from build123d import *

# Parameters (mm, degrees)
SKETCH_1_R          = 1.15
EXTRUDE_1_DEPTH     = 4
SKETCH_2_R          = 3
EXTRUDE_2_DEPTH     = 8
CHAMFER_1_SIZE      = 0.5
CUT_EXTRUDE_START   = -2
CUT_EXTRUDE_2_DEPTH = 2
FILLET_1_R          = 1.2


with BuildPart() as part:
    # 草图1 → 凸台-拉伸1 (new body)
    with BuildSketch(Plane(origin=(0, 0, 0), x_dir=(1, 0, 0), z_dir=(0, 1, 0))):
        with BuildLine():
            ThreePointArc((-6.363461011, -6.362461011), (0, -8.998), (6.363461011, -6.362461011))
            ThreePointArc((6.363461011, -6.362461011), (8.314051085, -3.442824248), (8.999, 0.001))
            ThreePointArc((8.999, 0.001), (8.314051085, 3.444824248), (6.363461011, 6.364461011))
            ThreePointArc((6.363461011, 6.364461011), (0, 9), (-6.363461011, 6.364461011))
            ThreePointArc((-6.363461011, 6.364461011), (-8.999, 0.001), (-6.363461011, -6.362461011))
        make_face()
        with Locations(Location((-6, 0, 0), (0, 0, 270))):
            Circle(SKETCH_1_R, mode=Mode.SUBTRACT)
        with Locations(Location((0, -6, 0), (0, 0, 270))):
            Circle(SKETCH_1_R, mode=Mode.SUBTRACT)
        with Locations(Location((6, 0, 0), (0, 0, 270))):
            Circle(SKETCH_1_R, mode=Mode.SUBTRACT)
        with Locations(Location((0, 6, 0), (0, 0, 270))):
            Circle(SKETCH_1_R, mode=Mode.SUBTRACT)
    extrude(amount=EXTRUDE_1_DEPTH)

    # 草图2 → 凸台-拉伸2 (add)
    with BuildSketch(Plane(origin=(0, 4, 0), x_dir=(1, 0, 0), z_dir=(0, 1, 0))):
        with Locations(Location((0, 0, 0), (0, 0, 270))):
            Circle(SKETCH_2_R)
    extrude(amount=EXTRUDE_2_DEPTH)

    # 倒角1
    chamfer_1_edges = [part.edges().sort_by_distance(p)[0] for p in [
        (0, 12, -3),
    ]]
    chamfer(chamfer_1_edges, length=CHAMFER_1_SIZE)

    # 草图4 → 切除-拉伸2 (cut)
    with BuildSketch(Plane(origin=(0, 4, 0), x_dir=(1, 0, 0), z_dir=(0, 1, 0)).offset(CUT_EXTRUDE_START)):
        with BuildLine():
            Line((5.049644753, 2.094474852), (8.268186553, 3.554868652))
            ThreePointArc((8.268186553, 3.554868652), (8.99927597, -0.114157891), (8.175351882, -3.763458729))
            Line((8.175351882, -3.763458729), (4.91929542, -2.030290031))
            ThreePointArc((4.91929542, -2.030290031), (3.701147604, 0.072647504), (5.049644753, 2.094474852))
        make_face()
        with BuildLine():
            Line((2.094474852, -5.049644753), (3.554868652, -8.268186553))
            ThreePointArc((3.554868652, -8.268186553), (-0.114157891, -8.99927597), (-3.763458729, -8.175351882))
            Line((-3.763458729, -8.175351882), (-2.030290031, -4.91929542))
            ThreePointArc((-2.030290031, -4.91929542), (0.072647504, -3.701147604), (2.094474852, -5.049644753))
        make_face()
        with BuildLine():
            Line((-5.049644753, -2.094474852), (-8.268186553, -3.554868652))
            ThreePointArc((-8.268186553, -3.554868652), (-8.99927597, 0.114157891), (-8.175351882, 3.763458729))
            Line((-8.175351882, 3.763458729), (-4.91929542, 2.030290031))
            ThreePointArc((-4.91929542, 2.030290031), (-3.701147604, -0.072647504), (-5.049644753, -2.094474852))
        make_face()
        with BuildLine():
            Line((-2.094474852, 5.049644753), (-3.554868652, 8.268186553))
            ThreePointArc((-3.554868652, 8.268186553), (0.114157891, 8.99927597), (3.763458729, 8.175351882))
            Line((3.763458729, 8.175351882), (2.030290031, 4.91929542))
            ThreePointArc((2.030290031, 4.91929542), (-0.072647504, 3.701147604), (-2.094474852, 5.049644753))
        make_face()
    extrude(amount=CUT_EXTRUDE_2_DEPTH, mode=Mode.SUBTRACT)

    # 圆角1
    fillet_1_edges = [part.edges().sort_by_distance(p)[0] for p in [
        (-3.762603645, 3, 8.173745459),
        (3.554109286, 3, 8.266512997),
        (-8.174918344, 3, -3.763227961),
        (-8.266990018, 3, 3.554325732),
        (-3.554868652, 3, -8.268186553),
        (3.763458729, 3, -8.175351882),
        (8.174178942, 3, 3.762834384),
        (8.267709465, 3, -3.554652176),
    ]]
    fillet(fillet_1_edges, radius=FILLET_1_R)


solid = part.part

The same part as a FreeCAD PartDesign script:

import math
import FreeCAD as App
import Part
import Sketcher


def edges_at(feature, points):
    """Names of the edges that pass closest to the given points."""
    edges = feature.Shape.Edges
    near = lambda p: min(range(len(edges)), key=lambda i: edges[i].distToShape(Part.Vertex(*p))[0])
    return sorted({f"Edge{near(p) + 1}" for p in points})

doc = App.newDocument("Part")
params = doc.addObject("Spreadsheet::Sheet", "Params")
for row, (alias, value) in enumerate([
    ("sketch1_radius", "9 mm"),
    ("sketch1_diameter", "2.3 mm"),
    ("pad1_length", "4 mm"),
    ("sketch2_diameter", "6 mm"),
    ("pad2_length", "8 mm"),
    ("chamfer_size", "0.5 mm"),
    ("sketch3_radius", "9 mm"),
    ("sketch3_radius2", "2.3 mm"),
    ("pocket1_length", "2 mm"),
    ("fillet_radius", "1.2 mm"),
], start=1):
    params.set(f"A{row}", alias)
    params.set(f"B{row}", "=" + value)
    params.setAlias(f"B{row}", alias)

body = doc.addObject("PartDesign::Body", "Body")

# Sketch on XZ plane
sketch1 = doc.addObject("Sketcher::SketchObject", "Sketch")
body.addObject(sketch1)
sketch1.AttachmentSupport = (doc.XZ_Plane, [""])
sketch1.MapMode = "FlatFace"
sketch1.addGeometry(Part.ArcOfCircle(Part.Circle(App.Vector(0, 0, 0), App.Vector(0, 0, 1), 9), math.radians(45), math.radians(135)), False)
sketch1.addGeometry(Part.ArcOfCircle(Part.Circle(App.Vector(0, 0, 0), App.Vector(0, 0, 1), 9), math.radians(0), math.radians(45)), False)
sketch1.addGeometry(Part.ArcOfCircle(Part.Circle(App.Vector(0, 0, 0), App.Vector(0, 0, 1), 9), math.radians(-45), math.radians(0)), False)
sketch1.addGeometry(Part.ArcOfCircle(Part.Circle(App.Vector(0, 0, 0), App.Vector(0, 0, 1), 9), math.radians(-135), math.radians(-45)), False)
sketch1.addGeometry(Part.ArcOfCircle(Part.Circle(App.Vector(0, 0, 0), App.Vector(0, 0, 1), 9), math.radians(135), math.radians(225)), False)
sketch1.addGeometry(Part.Circle(App.Vector(0, 6, 0), App.Vector(0, 0, 1), 1.1), False)
sketch1.addGeometry(Part.Circle(App.Vector(-6, 0, 0), App.Vector(0, 0, 1), 1.1), False)
sketch1.addGeometry(Part.Circle(App.Vector(6, 0, 0), App.Vector(0, 0, 1), 1.1), False)
sketch1.addGeometry(Part.Circle(App.Vector(0, -6, 0), App.Vector(0, 0, 1), 1.1), False)
sketch1.addConstraint(Sketcher.Constraint("Coincident", 0, 1, 1, 2))
sketch1.addConstraint(Sketcher.Constraint("Tangent", 1, 1, 2, 2))
sketch1.addConstraint(Sketcher.Constraint("Coincident", 2, 1, 3, 2))
sketch1.addConstraint(Sketcher.Constraint("Coincident", 3, 1, 4, 2))
sketch1.addConstraint(Sketcher.Constraint("Coincident", 4, 1, 0, 2))
sketch1.addConstraint(Sketcher.Constraint("Coincident", 3, 3, -1, 1))
sketch1.addConstraint(Sketcher.Constraint("Equal", 0, 1))
sketch1.addConstraint(Sketcher.Constraint("Equal", 1, 2))
sketch1.addConstraint(Sketcher.Constraint("Equal", 2, 3))
sketch1.addConstraint(Sketcher.Constraint("Equal", 3, 4))
sketch1.addConstraint(Sketcher.Constraint("Equal", 5, 6))
sketch1.addConstraint(Sketcher.Constraint("Equal", 6, 7))
sketch1.addConstraint(Sketcher.Constraint("Equal", 7, 8))
sketch1.addConstraint(Sketcher.Constraint("Symmetric", 6, 3, 7, 3, -1, 1))
sketch1.addConstraint(Sketcher.Constraint("Symmetric", 5, 3, 8, 3, -1, 1))
sketch1.addConstraint(Sketcher.Constraint("Symmetric", 0, 1, 4, 1, -2))
sketch1.addConstraint(Sketcher.Constraint("PointOnObject", 5, 3, -2))
sketch1.addConstraint(Sketcher.Constraint("PointOnObject", 6, 3, -1))
sketch1.addConstraint(Sketcher.Constraint("Horizontal", 4, 3, 1, 1))
sketch1.addConstraint(Sketcher.Constraint("Horizontal", 2, 1, 3, 1))
sketch1.addConstraint(Sketcher.Constraint("Vertical", 0, 1, 2, 1))
sketch1.addConstraint(Sketcher.Constraint("Radius", 0, 9.0))
sketch1.addConstraint(Sketcher.Constraint("Diameter", 5, 2.3))
sketch1.addConstraint(Sketcher.Constraint("DistanceY", -1, 1, 5, 3, 6.0))
sketch1.addConstraint(Sketcher.Constraint("DistanceX", 6, 3, -1, 1, 6.0))
sketch1.addConstraint(Sketcher.Constraint("DistanceY", 0, 3, -1, 1, 0.002))
sketch1.addConstraint(Sketcher.Constraint("DistanceX", -1, 1, 0, 1, 6.363461))
sketch1.setExpression("Constraints[21]", "Params.sketch1_radius")
sketch1.setExpression("Constraints[22]", "Params.sketch1_diameter")
pad1 = doc.addObject("PartDesign::Pad", "Pad")
body.addObject(pad1)
pad1.Profile = sketch1
pad1.setExpression("Length", "Params.pad1_length")
pad1.Reversed = True

# Sketch on XZ plane
sketch2 = doc.addObject("Sketcher::SketchObject", "Sketch001")
body.addObject(sketch2)
sketch2.AttachmentSupport = (doc.XZ_Plane, [""])
sketch2.MapMode = "FlatFace"
sketch2.AttachmentOffset = App.Placement(App.Vector(0, 0, -4), App.Rotation())
sketch2.addGeometry(Part.Circle(App.Vector(0, 0, 0), App.Vector(0, 0, 1), 3), False)
sketch2.addConstraint(Sketcher.Constraint("Coincident", 0, 3, -1, 1))
sketch2.addConstraint(Sketcher.Constraint("Diameter", 0, 6.0))
sketch2.setExpression("Constraints[1]", "Params.sketch2_diameter")
pad2 = doc.addObject("PartDesign::Pad", "Pad001")
body.addObject(pad2)
pad2.Profile = sketch2
pad2.setExpression("Length", "Params.pad2_length")
pad2.Reversed = True
doc.recompute()

chamfer = doc.addObject("PartDesign::Chamfer", "Chamfer")
body.addObject(chamfer)
chamfer.Base = (pad2, edges_at(pad2, [(0, 12, -3)]))
chamfer.setExpression("Size", "Params.chamfer_size")

# Sketch on XZ plane
sketch3 = doc.addObject("Sketcher::SketchObject", "Sketch002")
body.addObject(sketch3)
sketch3.AttachmentSupport = (doc.XZ_Plane, [""])
sketch3.MapMode = "FlatFace"
sketch3.AttachmentOffset = App.Placement(App.Vector(0, 0, -2), App.Rotation())
sketch3.addGeometry(Part.LineSegment(App.Vector(8.3, -3.6, 0), App.Vector(5, -2.1, 0)), False)
sketch3.addGeometry(Part.ArcOfCircle(Part.Circle(App.Vector(6, 0, 0), App.Vector(0, 0, 1), 2.3), math.radians(118), math.radians(246)), False)
sketch3.addGeometry(Part.LineSegment(App.Vector(4.9, 2, 0), App.Vector(8.2, 3.8, 0)), False)
sketch3.addGeometry(Part.ArcOfCircle(Part.Circle(App.Vector(0, 0, 0), App.Vector(0, 0, 1), 9), math.radians(-23), math.radians(25)), False)
sketch3.addGeometry(Part.LineSegment(App.Vector(3.6, 8.3, 0), App.Vector(2.1, 5, 0)), False)
sketch3.addGeometry(Part.ArcOfCircle(Part.Circle(App.Vector(0, 6, 0), App.Vector(0, 0, 1), 2.3), math.radians(-152), math.radians(-24)), False)
sketch3.addGeometry(Part.LineSegment(App.Vector(-2, 4.9, 0), App.Vector(-3.8, 8.2, 0)), False)
sketch3.addGeometry(Part.ArcOfCircle(Part.Circle(App.Vector(0, 0, 0), App.Vector(0, 0, 1), 9), math.radians(67), math.radians(115)), False)
sketch3.addGeometry(Part.LineSegment(App.Vector(-8.3, 3.6, 0), App.Vector(-5, 2.1, 0)), False)
sketch3.addGeometry(Part.ArcOfCircle(Part.Circle(App.Vector(-6, 0, 0), App.Vector(0, 0, 1), 2.3), math.radians(-62), math.radians(66)), False)
sketch3.addGeometry(Part.LineSegment(App.Vector(-4.9, -2, 0), App.Vector(-8.2, -3.8, 0)), False)
sketch3.addGeometry(Part.ArcOfCircle(Part.Circle(App.Vector(0, 0, 0), App.Vector(0, 0, 1), 9), math.radians(157), math.radians(205)), False)
sketch3.addGeometry(Part.LineSegment(App.Vector(-3.6, -8.3, 0), App.Vector(-2.1, -5, 0)), False)
sketch3.addGeometry(Part.ArcOfCircle(Part.Circle(App.Vector(0, -6, 0), App.Vector(0, 0, 1), 2.3), math.radians(28), math.radians(156)), False)
sketch3.addGeometry(Part.LineSegment(App.Vector(2, -4.9, 0), App.Vector(3.8, -8.2, 0)), False)
sketch3.addGeometry(Part.ArcOfCircle(Part.Circle(App.Vector(0, 0, 0), App.Vector(0, 0, 1), 9), math.radians(-113), math.radians(-65)), False)
sketch3.addConstraint(Sketcher.Constraint("Tangent", 0, 2, 1, 2))
sketch3.addConstraint(Sketcher.Constraint("Tangent", 1, 1, 2, 1))
sketch3.addConstraint(Sketcher.Constraint("Coincident", 2, 2, 3, 2))
sketch3.addConstraint(Sketcher.Constraint("Coincident", 3, 1, 0, 1))
sketch3.addConstraint(Sketcher.Constraint("Tangent", 4, 2, 5, 2))
sketch3.addConstraint(Sketcher.Constraint("Tangent", 5, 1, 6, 1))
sketch3.addConstraint(Sketcher.Constraint("Coincident", 6, 2, 7, 2))
sketch3.addConstraint(Sketcher.Constraint("Coincident", 7, 1, 4, 1))
sketch3.addConstraint(Sketcher.Constraint("Tangent", 8, 2, 9, 2))
sketch3.addConstraint(Sketcher.Constraint("Tangent", 9, 1, 10, 1))
sketch3.addConstraint(Sketcher.Constraint("Coincident", 10, 2, 11, 2))
sketch3.addConstraint(Sketcher.Constraint("Coincident", 11, 1, 8, 1))
sketch3.addConstraint(Sketcher.Constraint("Tangent", 12, 2, 13, 2))
sketch3.addConstraint(Sketcher.Constraint("Tangent", 13, 1, 14, 1))
sketch3.addConstraint(Sketcher.Constraint("Coincident", 14, 2, 15, 2))
sketch3.addConstraint(Sketcher.Constraint("Coincident", 15, 1, 12, 1))
sketch3.addConstraint(Sketcher.Constraint("Coincident", 3, 3, -1, 1))
sketch3.addConstraint(Sketcher.Constraint("Coincident", 7, 3, -1, 1))
sketch3.addConstraint(Sketcher.Constraint("Coincident", 11, 3, -1, 1))
sketch3.addConstraint(Sketcher.Constraint("Coincident", 15, 3, -1, 1))
sketch3.addConstraint(Sketcher.Constraint("Equal", 1, 5))
sketch3.addConstraint(Sketcher.Constraint("Equal", 3, 7))
sketch3.addConstraint(Sketcher.Constraint("Equal", 5, 9))
sketch3.addConstraint(Sketcher.Constraint("Equal", 7, 11))
sketch3.addConstraint(Sketcher.Constraint("Equal", 9, 13))
sketch3.addConstraint(Sketcher.Constraint("Equal", 11, 15))
sketch3.addConstraint(Sketcher.Constraint("Symmetric", 1, 3, 9, 3, -1, 1))
sketch3.addConstraint(Sketcher.Constraint("Symmetric", 5, 3, 13, 3, -1, 1))
sketch3.addConstraint(Sketcher.Constraint("PointOnObject", 1, 3, -1))
sketch3.addConstraint(Sketcher.Constraint("PointOnObject", 5, 3, -2))
sketch3.addConstraint(Sketcher.Constraint("Perpendicular", 0, 4))
sketch3.addConstraint(Sketcher.Constraint("Perpendicular", 2, 6))
sketch3.addConstraint(Sketcher.Constraint("Perpendicular", 4, 8))
sketch3.addConstraint(Sketcher.Constraint("Perpendicular", 6, 10))
sketch3.addConstraint(Sketcher.Constraint("Perpendicular", 8, 12))
sketch3.addConstraint(Sketcher.Constraint("Perpendicular", 10, 14))
sketch3.addConstraint(Sketcher.Constraint("Equal", 0, 4))
sketch3.addConstraint(Sketcher.Constraint("Radius", 3, 9.0))
sketch3.addConstraint(Sketcher.Constraint("Radius", 1, 2.3))
sketch3.addConstraint(Sketcher.Constraint("DistanceX", -1, 1, 1, 3, 6.0))
sketch3.addConstraint(Sketcher.Constraint("Distance", 2, 3.688601))
sketch3.addConstraint(Sketcher.Constraint("Distance", 0, 3.534369))
sketch3.setExpression("Constraints[37]", "Params.sketch3_radius")
sketch3.setExpression("Constraints[38]", "Params.sketch3_radius2")
pocket1 = doc.addObject("PartDesign::Pocket", "Pocket")
body.addObject(pocket1)
pocket1.Profile = sketch3
pocket1.setExpression("Length", "Params.pocket1_length")
doc.recompute()

fillet = doc.addObject("PartDesign::Fillet", "Fillet")
body.addObject(fillet)
fillet.Base = (pocket1, edges_at(pocket1, [
    (-3.763, 3, 8.174),
    (3.554, 3, 8.267),
    (-8.175, 3, -3.763),
    (-8.267, 3, 3.554),
    (-3.555, 3, -8.268),
    (3.763, 3, -8.175),
    (8.174, 3, 3.763),
    (8.268, 3, -3.555),
]))
fillet.setExpression("Radius", "Params.fillet_radius")

doc.recompute()
